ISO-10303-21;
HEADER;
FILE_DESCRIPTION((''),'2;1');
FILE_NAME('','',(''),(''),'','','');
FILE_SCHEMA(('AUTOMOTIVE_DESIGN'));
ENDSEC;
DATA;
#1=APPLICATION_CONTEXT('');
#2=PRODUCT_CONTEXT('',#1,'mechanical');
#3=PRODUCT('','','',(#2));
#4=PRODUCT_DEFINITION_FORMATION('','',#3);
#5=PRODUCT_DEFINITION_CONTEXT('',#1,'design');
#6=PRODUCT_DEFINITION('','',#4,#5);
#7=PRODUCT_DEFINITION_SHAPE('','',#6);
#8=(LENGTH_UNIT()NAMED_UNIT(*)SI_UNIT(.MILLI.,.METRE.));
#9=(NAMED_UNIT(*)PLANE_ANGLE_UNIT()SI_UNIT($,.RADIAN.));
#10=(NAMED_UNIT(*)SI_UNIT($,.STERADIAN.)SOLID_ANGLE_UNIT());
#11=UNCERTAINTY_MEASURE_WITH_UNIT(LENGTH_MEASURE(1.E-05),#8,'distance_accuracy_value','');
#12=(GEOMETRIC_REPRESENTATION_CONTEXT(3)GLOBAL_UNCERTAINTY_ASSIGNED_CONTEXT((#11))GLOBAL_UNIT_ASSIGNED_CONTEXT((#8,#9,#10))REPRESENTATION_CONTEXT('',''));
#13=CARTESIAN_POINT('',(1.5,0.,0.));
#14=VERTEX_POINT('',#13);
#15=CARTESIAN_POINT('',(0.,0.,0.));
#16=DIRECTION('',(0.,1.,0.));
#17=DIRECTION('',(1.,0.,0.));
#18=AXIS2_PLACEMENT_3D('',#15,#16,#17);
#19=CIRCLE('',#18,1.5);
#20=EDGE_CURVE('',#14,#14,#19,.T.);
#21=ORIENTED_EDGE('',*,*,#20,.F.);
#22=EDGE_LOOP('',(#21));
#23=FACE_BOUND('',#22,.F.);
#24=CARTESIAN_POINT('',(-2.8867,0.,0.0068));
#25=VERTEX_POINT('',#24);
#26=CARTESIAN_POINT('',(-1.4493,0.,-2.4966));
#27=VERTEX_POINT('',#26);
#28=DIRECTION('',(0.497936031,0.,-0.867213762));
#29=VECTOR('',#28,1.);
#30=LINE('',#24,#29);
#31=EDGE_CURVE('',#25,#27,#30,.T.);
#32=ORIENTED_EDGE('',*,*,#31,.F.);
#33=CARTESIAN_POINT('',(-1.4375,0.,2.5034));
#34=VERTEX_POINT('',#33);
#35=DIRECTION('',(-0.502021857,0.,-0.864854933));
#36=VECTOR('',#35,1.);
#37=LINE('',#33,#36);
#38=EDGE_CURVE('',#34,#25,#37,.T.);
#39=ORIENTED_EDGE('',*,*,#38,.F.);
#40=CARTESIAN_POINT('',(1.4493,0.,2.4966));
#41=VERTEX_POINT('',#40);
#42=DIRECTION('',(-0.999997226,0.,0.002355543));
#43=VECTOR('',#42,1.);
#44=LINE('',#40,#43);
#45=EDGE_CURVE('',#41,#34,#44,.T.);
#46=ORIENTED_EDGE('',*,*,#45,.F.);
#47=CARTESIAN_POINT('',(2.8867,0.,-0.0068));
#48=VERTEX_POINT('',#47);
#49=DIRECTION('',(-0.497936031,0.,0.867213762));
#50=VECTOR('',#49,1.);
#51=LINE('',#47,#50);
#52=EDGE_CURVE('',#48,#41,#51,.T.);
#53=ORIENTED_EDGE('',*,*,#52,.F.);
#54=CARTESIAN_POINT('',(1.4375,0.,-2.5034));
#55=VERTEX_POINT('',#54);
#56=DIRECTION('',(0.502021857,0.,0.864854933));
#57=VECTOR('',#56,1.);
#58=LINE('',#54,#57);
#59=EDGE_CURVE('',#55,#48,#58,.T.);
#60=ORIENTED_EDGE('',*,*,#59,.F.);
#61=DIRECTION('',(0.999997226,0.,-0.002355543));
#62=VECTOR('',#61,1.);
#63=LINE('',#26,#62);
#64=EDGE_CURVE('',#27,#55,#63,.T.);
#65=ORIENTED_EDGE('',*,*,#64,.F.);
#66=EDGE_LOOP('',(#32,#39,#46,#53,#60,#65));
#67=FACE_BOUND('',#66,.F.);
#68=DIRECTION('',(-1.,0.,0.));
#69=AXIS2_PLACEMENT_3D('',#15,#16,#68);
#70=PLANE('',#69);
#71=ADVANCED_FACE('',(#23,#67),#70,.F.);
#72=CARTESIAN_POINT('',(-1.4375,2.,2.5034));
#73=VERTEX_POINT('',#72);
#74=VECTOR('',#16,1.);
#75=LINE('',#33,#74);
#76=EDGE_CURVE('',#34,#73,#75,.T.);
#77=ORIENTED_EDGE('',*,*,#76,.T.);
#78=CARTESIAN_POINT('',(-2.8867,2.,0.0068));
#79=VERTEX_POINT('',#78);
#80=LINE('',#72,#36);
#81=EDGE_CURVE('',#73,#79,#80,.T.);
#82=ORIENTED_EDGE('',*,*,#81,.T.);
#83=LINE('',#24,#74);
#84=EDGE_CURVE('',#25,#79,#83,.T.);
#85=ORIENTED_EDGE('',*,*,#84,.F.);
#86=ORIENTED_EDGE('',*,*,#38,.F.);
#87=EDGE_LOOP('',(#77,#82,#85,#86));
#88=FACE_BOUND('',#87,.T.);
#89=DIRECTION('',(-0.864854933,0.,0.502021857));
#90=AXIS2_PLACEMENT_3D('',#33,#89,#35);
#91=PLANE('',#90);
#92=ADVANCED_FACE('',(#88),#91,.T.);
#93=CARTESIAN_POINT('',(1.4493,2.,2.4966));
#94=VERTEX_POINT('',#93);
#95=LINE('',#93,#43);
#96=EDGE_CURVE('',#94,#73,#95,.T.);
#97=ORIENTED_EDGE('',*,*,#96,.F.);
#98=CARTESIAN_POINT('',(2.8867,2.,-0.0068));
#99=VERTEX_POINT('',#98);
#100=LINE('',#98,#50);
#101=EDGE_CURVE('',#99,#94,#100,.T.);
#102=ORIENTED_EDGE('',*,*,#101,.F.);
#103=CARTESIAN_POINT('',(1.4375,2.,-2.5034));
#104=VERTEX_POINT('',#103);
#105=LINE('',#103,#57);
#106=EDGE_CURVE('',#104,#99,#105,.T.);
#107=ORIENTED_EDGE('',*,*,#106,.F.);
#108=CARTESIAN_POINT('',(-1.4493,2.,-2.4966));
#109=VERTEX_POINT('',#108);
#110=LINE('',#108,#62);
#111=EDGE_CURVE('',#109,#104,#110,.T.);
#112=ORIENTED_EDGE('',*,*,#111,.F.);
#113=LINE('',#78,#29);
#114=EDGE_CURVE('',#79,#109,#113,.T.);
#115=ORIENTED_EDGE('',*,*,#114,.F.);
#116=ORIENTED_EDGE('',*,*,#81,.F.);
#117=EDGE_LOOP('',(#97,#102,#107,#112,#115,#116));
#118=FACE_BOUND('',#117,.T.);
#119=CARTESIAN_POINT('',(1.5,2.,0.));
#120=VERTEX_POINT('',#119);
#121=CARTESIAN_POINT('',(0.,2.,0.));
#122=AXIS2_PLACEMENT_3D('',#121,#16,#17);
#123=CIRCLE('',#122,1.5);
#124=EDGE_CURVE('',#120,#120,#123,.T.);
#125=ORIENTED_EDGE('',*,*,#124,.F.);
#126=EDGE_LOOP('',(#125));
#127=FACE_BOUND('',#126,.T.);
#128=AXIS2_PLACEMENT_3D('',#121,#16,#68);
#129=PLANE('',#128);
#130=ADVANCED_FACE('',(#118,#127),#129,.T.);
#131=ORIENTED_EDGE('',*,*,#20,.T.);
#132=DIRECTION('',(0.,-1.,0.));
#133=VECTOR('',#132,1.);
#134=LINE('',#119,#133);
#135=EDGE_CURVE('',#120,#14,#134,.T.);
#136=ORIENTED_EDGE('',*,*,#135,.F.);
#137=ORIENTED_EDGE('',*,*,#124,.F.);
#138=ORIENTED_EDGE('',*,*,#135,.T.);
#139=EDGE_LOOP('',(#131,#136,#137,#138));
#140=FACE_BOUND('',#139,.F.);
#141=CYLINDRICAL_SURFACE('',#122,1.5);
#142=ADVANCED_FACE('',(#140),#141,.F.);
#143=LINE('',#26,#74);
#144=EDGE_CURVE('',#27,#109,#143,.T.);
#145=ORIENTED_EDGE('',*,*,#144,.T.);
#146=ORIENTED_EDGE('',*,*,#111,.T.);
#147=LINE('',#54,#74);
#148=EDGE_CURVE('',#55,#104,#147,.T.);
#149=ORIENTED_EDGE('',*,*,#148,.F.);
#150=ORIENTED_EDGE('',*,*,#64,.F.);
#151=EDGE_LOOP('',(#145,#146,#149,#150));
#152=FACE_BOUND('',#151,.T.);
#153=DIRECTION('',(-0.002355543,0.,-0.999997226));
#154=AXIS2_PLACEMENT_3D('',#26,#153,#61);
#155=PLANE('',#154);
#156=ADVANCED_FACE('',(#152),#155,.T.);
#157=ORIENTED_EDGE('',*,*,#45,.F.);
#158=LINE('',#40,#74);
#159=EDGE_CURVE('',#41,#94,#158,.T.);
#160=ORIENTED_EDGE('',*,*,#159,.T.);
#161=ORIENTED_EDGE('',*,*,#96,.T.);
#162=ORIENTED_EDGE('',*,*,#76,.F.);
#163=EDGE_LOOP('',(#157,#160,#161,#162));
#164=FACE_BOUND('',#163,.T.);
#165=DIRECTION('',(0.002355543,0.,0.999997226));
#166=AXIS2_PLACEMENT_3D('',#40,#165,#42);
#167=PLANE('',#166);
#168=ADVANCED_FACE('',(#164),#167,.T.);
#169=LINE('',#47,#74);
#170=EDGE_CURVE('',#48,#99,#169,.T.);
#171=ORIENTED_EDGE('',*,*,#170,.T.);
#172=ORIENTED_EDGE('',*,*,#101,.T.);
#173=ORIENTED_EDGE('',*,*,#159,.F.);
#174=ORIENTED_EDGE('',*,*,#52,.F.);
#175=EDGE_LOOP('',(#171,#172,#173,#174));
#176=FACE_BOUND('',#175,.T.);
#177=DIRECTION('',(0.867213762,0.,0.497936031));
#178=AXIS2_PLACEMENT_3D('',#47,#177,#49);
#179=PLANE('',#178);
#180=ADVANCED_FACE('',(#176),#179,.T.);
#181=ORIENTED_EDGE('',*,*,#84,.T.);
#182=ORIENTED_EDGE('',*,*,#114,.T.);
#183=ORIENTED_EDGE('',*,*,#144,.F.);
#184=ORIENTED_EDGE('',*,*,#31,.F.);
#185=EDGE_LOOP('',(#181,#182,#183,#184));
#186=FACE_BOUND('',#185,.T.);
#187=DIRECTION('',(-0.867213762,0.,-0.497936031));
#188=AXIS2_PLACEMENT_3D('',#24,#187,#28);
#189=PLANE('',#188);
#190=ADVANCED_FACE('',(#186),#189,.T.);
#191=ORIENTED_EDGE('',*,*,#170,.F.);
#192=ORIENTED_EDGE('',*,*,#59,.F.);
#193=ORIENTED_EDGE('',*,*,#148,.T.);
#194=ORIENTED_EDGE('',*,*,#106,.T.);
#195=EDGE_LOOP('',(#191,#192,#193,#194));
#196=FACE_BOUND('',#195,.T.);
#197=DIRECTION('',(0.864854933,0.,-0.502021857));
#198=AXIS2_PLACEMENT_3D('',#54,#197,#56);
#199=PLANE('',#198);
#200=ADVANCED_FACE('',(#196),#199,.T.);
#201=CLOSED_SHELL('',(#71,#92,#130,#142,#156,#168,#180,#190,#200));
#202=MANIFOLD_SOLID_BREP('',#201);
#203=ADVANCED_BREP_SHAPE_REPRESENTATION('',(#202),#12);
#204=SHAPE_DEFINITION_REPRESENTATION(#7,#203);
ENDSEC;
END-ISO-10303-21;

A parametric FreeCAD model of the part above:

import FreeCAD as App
import Part
import Sketcher
Q = App.Units.Quantity

doc = App.newDocument("Part")
body = doc.addObject("PartDesign::Body", "Body")

sketch1 = doc.addObject("Sketcher::SketchObject", "Sketch")
body.addObject(sketch1)
sketch1.AttachmentSupport = (doc.XZ_Plane, [""])
sketch1.MapMode = "FlatFace"
sketch1.addGeometry([
    Part.LineSegment(App.Vector(2.9, 0, 0), App.Vector(1.4, -2.5, 0)),
    Part.LineSegment(App.Vector(1.4, -2.5, 0), App.Vector(-1.4, -2.5, 0)),
    Part.LineSegment(App.Vector(-1.4, -2.5, 0), App.Vector(-2.9, 0, 0)),
    Part.LineSegment(App.Vector(-2.9, 0, 0), App.Vector(-1.4, 2.5, 0)),
    Part.LineSegment(App.Vector(-1.4, 2.5, 0), App.Vector(1.4, 2.5, 0)),
    Part.LineSegment(App.Vector(1.4, 2.5, 0), App.Vector(2.9, 0, 0)),
], False)
sketch1.addConstraint([
    Sketcher.Constraint("Coincident", 0, 2, 1, 1),
    Sketcher.Constraint("Coincident", 1, 2, 2, 1),
    Sketcher.Constraint("Coincident", 2, 2, 3, 1),
    Sketcher.Constraint("Coincident", 3, 2, 4, 1),
    Sketcher.Constraint("Coincident", 4, 2, 5, 1),
    Sketcher.Constraint("Coincident", 5, 2, 0, 1),
    Sketcher.Constraint("Symmetric", 0, 2, 3, 2, -1, 1),
    Sketcher.Constraint("Symmetric", 1, 2, 4, 2, -1, 1),
    Sketcher.Constraint("Symmetric", 2, 2, 5, 2, -1, 1),
    Sketcher.Constraint("Equal", 0, 1),
    Sketcher.Constraint("Equal", 1, 2),
    Sketcher.Constraint("DistanceY", 1, 2, 3, 2, Q("5 mm")),
    Sketcher.Constraint("DistanceX", 3, 2, 0, 2, Q("2.875 mm")),
    Sketcher.Constraint("DistanceX", 2, 2, 4, 2, Q("4.336 mm")),
    Sketcher.Constraint("DistanceY", 0, 2, -1, 1, Q("2.5034 mm")),
])
pad1 = doc.addObject("PartDesign::Pad", "Pad")
body.addObject(pad1)
pad1.Profile = sketch1
pad1.Length = 2
pad1.Reversed = True

sketch2 = doc.addObject("Sketcher::SketchObject", "Sketch001")
body.addObject(sketch2)
sketch2.AttachmentSupport = (doc.XZ_Plane, [""])
sketch2.MapMode = "FlatFace"
sketch2.AttachmentOffset = App.Placement(App.Vector(0, 0, -2), App.Rotation())
sketch2.addGeometry(Part.Circle(App.Vector(0, 0, 0), App.Vector(0, 0, 1), 1.5), False)
sketch2.addConstraint([
    Sketcher.Constraint("Coincident", 0, 3, -1, 1),
    Sketcher.Constraint("Diameter", 0, Q("3 mm")),
])
pocket1 = doc.addObject("PartDesign::Pocket", "Pocket")
body.addObject(pocket1)
pocket1.Profile = sketch2
pocket1.Length = 10
pocket1.Reversed = True

doc.recompute()
